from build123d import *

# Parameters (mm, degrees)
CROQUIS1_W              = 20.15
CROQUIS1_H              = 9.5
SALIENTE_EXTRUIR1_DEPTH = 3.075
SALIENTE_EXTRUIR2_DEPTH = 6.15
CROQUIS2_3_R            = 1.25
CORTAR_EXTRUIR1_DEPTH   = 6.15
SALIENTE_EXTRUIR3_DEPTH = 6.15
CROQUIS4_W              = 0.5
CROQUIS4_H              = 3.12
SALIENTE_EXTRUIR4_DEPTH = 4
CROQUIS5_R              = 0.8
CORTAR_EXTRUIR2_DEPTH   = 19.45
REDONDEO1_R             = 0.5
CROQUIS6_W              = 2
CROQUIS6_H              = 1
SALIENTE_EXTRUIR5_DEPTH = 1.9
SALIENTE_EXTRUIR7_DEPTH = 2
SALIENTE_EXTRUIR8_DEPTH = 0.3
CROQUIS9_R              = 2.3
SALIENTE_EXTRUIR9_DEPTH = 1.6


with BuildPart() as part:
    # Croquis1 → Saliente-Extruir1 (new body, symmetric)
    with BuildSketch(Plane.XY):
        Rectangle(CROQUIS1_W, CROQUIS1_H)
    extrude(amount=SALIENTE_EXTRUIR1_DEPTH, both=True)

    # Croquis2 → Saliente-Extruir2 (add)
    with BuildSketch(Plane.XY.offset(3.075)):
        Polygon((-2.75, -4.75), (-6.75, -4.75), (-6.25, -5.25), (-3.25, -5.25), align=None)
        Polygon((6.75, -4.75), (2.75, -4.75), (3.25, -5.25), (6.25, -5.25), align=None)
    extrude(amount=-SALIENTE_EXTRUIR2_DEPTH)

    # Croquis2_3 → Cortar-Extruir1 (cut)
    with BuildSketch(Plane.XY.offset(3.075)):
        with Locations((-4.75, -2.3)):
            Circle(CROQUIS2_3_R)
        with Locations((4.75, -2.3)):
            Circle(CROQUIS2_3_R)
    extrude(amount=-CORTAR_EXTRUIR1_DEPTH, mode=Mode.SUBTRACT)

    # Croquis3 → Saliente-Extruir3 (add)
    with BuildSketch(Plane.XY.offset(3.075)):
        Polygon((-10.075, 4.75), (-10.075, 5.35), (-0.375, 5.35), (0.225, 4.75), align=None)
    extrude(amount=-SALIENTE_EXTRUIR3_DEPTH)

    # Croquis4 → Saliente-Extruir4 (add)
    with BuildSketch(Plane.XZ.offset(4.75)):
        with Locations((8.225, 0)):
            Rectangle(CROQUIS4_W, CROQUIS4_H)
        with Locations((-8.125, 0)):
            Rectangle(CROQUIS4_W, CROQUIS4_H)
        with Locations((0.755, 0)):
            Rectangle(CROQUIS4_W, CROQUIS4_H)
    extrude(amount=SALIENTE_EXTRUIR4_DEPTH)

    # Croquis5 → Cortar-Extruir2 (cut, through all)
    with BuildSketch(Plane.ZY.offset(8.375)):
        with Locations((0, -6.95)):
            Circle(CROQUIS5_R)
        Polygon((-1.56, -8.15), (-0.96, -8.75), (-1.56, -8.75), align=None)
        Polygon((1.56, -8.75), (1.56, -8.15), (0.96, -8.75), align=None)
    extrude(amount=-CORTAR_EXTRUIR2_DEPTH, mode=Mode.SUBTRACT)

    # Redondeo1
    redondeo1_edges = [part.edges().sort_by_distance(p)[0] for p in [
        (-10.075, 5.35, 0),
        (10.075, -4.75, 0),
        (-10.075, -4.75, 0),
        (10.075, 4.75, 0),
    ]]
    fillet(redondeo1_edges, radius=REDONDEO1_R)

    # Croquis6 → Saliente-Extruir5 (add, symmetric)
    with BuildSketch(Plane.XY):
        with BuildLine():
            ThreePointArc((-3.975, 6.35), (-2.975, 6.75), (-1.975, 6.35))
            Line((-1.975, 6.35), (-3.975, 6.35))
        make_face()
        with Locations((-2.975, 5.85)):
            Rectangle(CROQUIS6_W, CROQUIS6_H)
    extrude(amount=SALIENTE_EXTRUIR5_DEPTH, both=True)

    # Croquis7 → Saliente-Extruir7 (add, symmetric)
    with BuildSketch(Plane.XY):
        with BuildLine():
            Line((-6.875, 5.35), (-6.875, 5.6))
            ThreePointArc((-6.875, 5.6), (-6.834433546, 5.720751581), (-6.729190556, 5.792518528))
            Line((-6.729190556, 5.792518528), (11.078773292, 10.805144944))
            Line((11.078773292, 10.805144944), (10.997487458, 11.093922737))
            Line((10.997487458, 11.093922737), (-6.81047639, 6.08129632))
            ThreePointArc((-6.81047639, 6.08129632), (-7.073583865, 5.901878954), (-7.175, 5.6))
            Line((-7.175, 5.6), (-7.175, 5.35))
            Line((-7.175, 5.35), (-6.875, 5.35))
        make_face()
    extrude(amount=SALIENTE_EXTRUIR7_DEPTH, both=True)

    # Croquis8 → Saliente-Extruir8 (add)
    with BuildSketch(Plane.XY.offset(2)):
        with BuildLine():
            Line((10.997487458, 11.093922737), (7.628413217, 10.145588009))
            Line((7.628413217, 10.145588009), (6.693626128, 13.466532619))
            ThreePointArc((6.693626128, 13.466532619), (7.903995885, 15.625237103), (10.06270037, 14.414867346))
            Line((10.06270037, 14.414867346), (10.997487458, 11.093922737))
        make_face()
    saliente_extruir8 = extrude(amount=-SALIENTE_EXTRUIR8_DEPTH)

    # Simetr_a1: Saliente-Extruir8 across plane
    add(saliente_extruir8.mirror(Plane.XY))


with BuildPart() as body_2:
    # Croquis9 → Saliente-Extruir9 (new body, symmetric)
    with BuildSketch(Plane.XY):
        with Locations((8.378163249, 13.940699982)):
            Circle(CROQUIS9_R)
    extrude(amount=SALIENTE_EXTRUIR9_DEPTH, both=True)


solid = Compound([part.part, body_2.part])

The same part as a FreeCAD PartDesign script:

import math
import FreeCAD as App
import Part
import Sketcher
Q = App.Units.Quantity


def edges_at(feature, points):
    """Names of the edges that pass closest to the given points."""
    edges = feature.Shape.Edges
    near = lambda p: min(range(len(edges)), key=lambda i: edges[i].distToShape(Part.Vertex(*p))[0])
    return sorted({f"Edge{near(p) + 1}" for p in points})


def add_polygon(sketch, points):
    """Adds a closed chain of lines whose ends are joined by coincident constraints."""
    first, n = sketch.GeometryCount, len(points)
    for a, b in zip(points, points[1:] + points[:1]):
        sketch.addGeometry(Part.LineSegment(App.Vector(*a, 0), App.Vector(*b, 0)), False)
    for i in range(n):
        sketch.addConstraint(Sketcher.Constraint("Coincident", first + i, 2, first + (i + 1) % n, 1))

doc = App.newDocument("Part")
params = doc.addObject("Spreadsheet::Sheet", "Params")
for row, (alias, value) in enumerate([
    ("sketch1_height", "9.5 mm"),
    ("sketch1_width", "20.15 mm"),
    ("pad1_length", "6.15 mm"),
    ("sketch2_width", "4 mm"),
    ("sketch2_width2", "3 mm"),
    ("pad2_length", "6.15 mm"),
    ("sketch3_diameter", "2.5 mm"),
    ("pocket1_length", "6.15 mm"),
    ("sketch4_width", "10.3 mm"),
    ("sketch4_width2", "9.7 mm"),
    ("pad3_length", "6.15 mm"),
    ("sketch5_width", "0.5 mm"),
    ("sketch5_height", "3.12 mm"),
    ("pad4_length", "4 mm"),
    ("sketch6_diameter", "1.6 mm"),
    ("sketch6_width", "0.6 mm"),
    ("fillet_radius", "0.5 mm"),
    ("sketch7_width", "2 mm"),
    ("sketch7_height", "1 mm"),
    ("sketch7_radius", "1.45 mm"),
    ("pad5_length", "3.8 mm"),
    ("sketch8_radius", "0.2 mm"),
    ("sketch8_radius2", "0.5 mm"),
    ("sketch8_length", "18.5 mm"),
    ("sketch8_length2", "0.3 mm"),
    ("sketch8_length3", "18.5 mm"),
    ("pad6_length", "4 mm"),
    ("sketch9_radius", "1.75 mm"),
    ("sketch9_length", "3.45 mm"),
    ("pad7_length", "0.3 mm"),
    ("sketch10_diameter", "4.6 mm"),
    ("pad8_length", "3.2 mm"),
], start=1):
    params.set(f"A{row}", alias)
    params.set(f"B{row}", "=" + value)
    params.setAlias(f"B{row}", alias)

body = doc.addObject("PartDesign::Body", "Body")

sketch1 = doc.addObject("Sketcher::SketchObject", "Sketch")
body.addObject(sketch1)
sketch1.AttachmentSupport = (doc.XY_Plane, [""])
sketch1.MapMode = "FlatFace"
add_polygon(sketch1, [(-10.075, 4.75), (-10.075, -4.75), (10.075, -4.75), (10.075, 4.75)])
sketch1.addConstraint(Sketcher.Constraint("Vertical", 0))
sketch1.addConstraint(Sketcher.Constraint("Horizontal", 1))
sketch1.addConstraint(Sketcher.Constraint("Vertical", 2))
sketch1.addConstraint(Sketcher.Constraint("Horizontal", 3))
sketch1.addConstraint(Sketcher.Constraint("Symmetric", 0, 2, 2, 2, -1, 1))
sketch1.addConstraint(Sketcher.Constraint("DistanceY", 0, 2, 0, 1, Q("9.5 mm")))
sketch1.addConstraint(Sketcher.Constraint("DistanceX", 1, 1, 1, 2, Q("20.15 mm")))
sketch1.setExpression("Constraints[9]", "Params.sketch1_height")
sketch1.setExpression("Constraints[10]", "Params.sketch1_width")
pad1 = doc.addObject("PartDesign::Pad", "Pad")
body.addObject(pad1)
pad1.Profile = sketch1
pad1.setExpression("Length", "Params.pad1_length")
pad1.Midplane = True

sketch2 = doc.addObject("Sketcher::SketchObject", "Sketch001")
body.addObject(sketch2)
sketch2.AttachmentSupport = (doc.XY_Plane, [""])
sketch2.MapMode = "FlatFace"
sketch2.AttachmentOffset = App.Placement(App.Vector(0, 0, 3.075), App.Rotation())
add_polygon(sketch2, [(-2.75, -4.75), (-6.75, -4.75), (-6.25, -5.25), (-3.25, -5.25)])
add_polygon(sketch2, [(6.75, -4.75), (2.75, -4.75), (3.25, -5.25), (6.25, -5.25)])
sketch2.addConstraint(Sketcher.Constraint("Horizontal", 0))
sketch2.addConstraint(Sketcher.Constraint("Horizontal", 2))
sketch2.addConstraint(Sketcher.Constraint("Horizontal", 4))
sketch2.addConstraint(Sketcher.Constraint("Horizontal", 6))
sketch2.addConstraint(Sketcher.Constraint("Symmetric", 3, 2, 4, 2, -2))
sketch2.addConstraint(Sketcher.Constraint("Symmetric", 2, 2, 5, 2, -2))
sketch2.addConstraint(Sketcher.Constraint("Perpendicular", 1, 3))
sketch2.addConstraint(Sketcher.Constraint("Perpendicular", 3, 5))
sketch2.addConstraint(Sketcher.Constraint("Perpendicular", 5, 7))
sketch2.addConstraint(Sketcher.Constraint("Equal", 0, 4))
sketch2.addConstraint(Sketcher.Constraint("DistanceX", 0, 2, 0, 1, Q("4 mm")))
sketch2.addConstraint(Sketcher.Constraint("DistanceX", 2, 1, 2, 2, Q("3 mm")))
sketch2.addConstraint(Sketcher.Constraint("DistanceX", 2, 2, 4, 2, Q("6 mm")))
sketch2.addConstraint(Sketcher.Constraint("DistanceY", 0, 2, -1, 1, Q("4.75 mm")))
sketch2.setExpression("Constraints[18]", "Params.sketch2_width")
sketch2.setExpression("Constraints[19]", "Params.sketch2_width2")
pad2 = doc.addObject("PartDesign::Pad", "Pad001")
body.addObject(pad2)
pad2.Profile = sketch2
pad2.setExpression("Length", "Params.pad2_length")
pad2.Reversed = True

sketch3 = doc.addObject("Sketcher::SketchObject", "Sketch002")
body.addObject(sketch3)
sketch3.AttachmentSupport = (doc.XY_Plane, [""])
sketch3.MapMode = "FlatFace"
sketch3.AttachmentOffset = App.Placement(App.Vector(0, 0, 3.075), App.Rotation())
sketch3.addGeometry(Part.Circle(App.Vector(-4.75, -2.3, 0), App.Vector(0, 0, 1), 1.25), False)
sketch3.addGeometry(Part.Circle(App.Vector(4.75, -2.3, 0), App.Vector(0, 0, 1), 1.25), False)
sketch3.addConstraint(Sketcher.Constraint("Equal", 0, 1))
sketch3.addConstraint(Sketcher.Constraint("Symmetric", 0, 3, 1, 3, -2))
sketch3.addConstraint(Sketcher.Constraint("Diameter", 0, Q("2.5 mm")))
sketch3.addConstraint(Sketcher.Constraint("DistanceY", 0, 3, -1, 1, Q("2.3 mm")))
sketch3.addConstraint(Sketcher.Constraint("DistanceX", 0, 3, 1, 3, Q("9.5 mm")))
sketch3.setExpression("Constraints[2]", "Params.sketch3_diameter")
pocket1 = doc.addObject("PartDesign::Pocket", "Pocket")
body.addObject(pocket1)
pocket1.Profile = sketch3
pocket1.setExpression("Length", "Params.pocket1_length")

sketch4 = doc.addObject("Sketcher::SketchObject", "Sketch003")
body.addObject(sketch4)
sketch4.AttachmentSupport = (doc.XY_Plane, [""])
sketch4.MapMode = "FlatFace"
sketch4.AttachmentOffset = App.Placement(App.Vector(0, 0, 3.075), App.Rotation())
add_polygon(sketch4, [(-10.075, 5.35), (-10.075, 4.75), (0.225, 4.75), (-0.375, 5.35)])
sketch4.addConstraint(Sketcher.Constraint("Vertical", 0))
sketch4.addConstraint(Sketcher.Constraint("Horizontal", 1))
sketch4.addConstraint(Sketcher.Constraint("Horizontal", 3))
sketch4.addConstraint(Sketcher.Constraint("Angle", 2, Q("135 deg")))
sketch4.addConstraint(Sketcher.Constraint("DistanceX", 1, 1, 1, 2, Q("10.3 mm")))
sketch4.addConstraint(Sketcher.Constraint("DistanceX", 3, 2, 3, 1, Q("9.7 mm")))
sketch4.addConstraint(Sketcher.Constraint("DistanceY", -1, 1, 0, 2, Q("4.75 mm")))
sketch4.addConstraint(Sketcher.Constraint("DistanceX", 0, 2, -1, 1, Q("10.075 mm")))
sketch4.setExpression("Constraints[8]", "Params.sketch4_width")
sketch4.setExpression("Constraints[9]", "Params.sketch4_width2")
pad3 = doc.addObject("PartDesign::Pad", "Pad002")
body.addObject(pad3)
pad3.Profile = sketch4
pad3.setExpression("Length", "Params.pad3_length")
pad3.Reversed = True

sketch5 = doc.addObject("Sketcher::SketchObject", "Sketch004")
body.addObject(sketch5)
sketch5.AttachmentSupport = (doc.XZ_Plane, [""])
sketch5.MapMode = "FlatFace"
sketch5.AttachmentOffset = App.Placement(App.Vector(0, 0, 4.75), App.Rotation())
add_polygon(sketch5, [(7.975, 1.56), (7.975, -1.56), (8.475, -1.56), (8.475, 1.56)])
add_polygon(sketch5, [(-8.375, 1.56), (-8.375, -1.56), (-7.875, -1.56), (-7.875, 1.56)])
add_polygon(sketch5, [(0.505, 1.56), (0.505, -1.56), (1.005, -1.56), (1.005, 1.56)])
sketch5.addConstraint(Sketcher.Constraint("Vertical", 0))
sketch5.addConstraint(Sketcher.Constraint("Horizontal", 1))
sketch5.addConstraint(Sketcher.Constraint("Vertical", 2))
sketch5.addConstraint(Sketcher.Constraint("Horizontal", 3))
sketch5.addConstraint(Sketcher.Constraint("Vertical", 4))
sketch5.addConstraint(Sketcher.Constraint("Horizontal", 5))
sketch5.addConstraint(Sketcher.Constraint("Vertical", 6))
sketch5.addConstraint(Sketcher.Constraint("Horizontal", 7))
sketch5.addConstraint(Sketcher.Constraint("Vertical", 8))
sketch5.addConstraint(Sketcher.Constraint("Horizontal", 9))
sketch5.addConstraint(Sketcher.Constraint("Vertical", 10))
sketch5.addConstraint(Sketcher.Constraint("Horizontal", 11))
sketch5.addConstraint(Sketcher.Constraint("Horizontal", 1, 2, 4, 2))
sketch5.addConstraint(Sketcher.Constraint("Horizontal", 3, 2, 6, 2))
sketch5.addConstraint(Sketcher.Constraint("Horizontal", 5, 2, 8, 2))
sketch5.addConstraint(Sketcher.Constraint("Horizontal", 7, 2, 10, 2))
sketch5.addConstraint(Sketcher.Constraint("Equal", 3, 5))
sketch5.addConstraint(Sketcher.Constraint("Equal", 7, 9))
sketch5.addConstraint(Sketcher.Constraint("DistanceX", 1, 1, 1, 2, Q("0.5 mm")))
sketch5.addConstraint(Sketcher.Constraint("DistanceY", 0, 2, 0, 1, Q("3.12 mm")))
sketch5.addConstraint(Sketcher.Constraint("DistanceY", 0, 2, -1, 1, Q("1.56 mm")))
sketch5.addConstraint(Sketcher.Constraint("DistanceX", 4, 2, 0, 2, Q("16.35 mm")))
sketch5.addConstraint(Sketcher.Constraint("DistanceX", 8, 2, 0, 2, Q("7.47 mm")))
sketch5.addConstraint(Sketcher.Constraint("DistanceX", -1, 1, 0, 2, Q("7.975 mm")))
sketch5.setExpression("Constraints[30]", "Params.sketch5_width")
sketch5.setExpression("Constraints[31]", "Params.sketch5_height")
pad4 = doc.addObject("PartDesign::Pad", "Pad003")
body.addObject(pad4)
pad4.Profile = sketch5
pad4.setExpression("Length", "Params.pad4_length")

sketch6 = doc.addObject("Sketcher::SketchObject", "Sketch005")
body.addObject(sketch6)
sketch6.AttachmentSupport = (doc.YZ_Plane, [""])
sketch6.MapMode = "FlatFace"
sketch6.AttachmentOffset = App.Placement(App.Vector(0, 0, -8.375), App.Rotation())
sketch6.addGeometry(Part.Circle(App.Vector(-6.95, 0, 0), App.Vector(0, 0, 1), 0.8), False)
add_polygon(sketch6, [(-8.75, -0.96), (-8.15, -1.56), (-8.75, -1.56)])
add_polygon(sketch6, [(-8.75, 1.56), (-8.15, 1.56), (-8.75, 0.96)])
sketch6.addConstraint(Sketcher.Constraint("Horizontal", 2))
sketch6.addConstraint(Sketcher.Constraint("Vertical", 3))
sketch6.addConstraint(Sketcher.Constraint("Horizontal", 4))
sketch6.addConstraint(Sketcher.Constraint("Vertical", 6))
sketch6.addConstraint(Sketcher.Constraint("Symmetric", 1, 2, 4, 2, -1))
sketch6.addConstraint(Sketcher.Constraint("Symmetric", 3, 2, 5, 2, -1))
sketch6.addConstraint(Sketcher.Constraint("PointOnObject", 0, 3, -1))
sketch6.addConstraint(Sketcher.Constraint("Perpendicular", 1, 5))
sketch6.addConstraint(Sketcher.Constraint("Diameter", 0, Q("1.6 mm")))
sketch6.addConstraint(Sketcher.Constraint("DistanceX", 2, 2, 2, 1, Q("0.6 mm")))
sketch6.addConstraint(Sketcher.Constraint("DistanceX", 1, 2, 0, 3, Q("1.2 mm")))
sketch6.addConstraint(Sketcher.Constraint("DistanceX", 0, 3, -1, 1, Q("6.95 mm")))
sketch6.addConstraint(Sketcher.Constraint("DistanceY", 1, 2, -1, 1, Q("1.56 mm")))
sketch6.setExpression("Constraints[14]", "Params.sketch6_diameter")
sketch6.setExpression("Constraints[15]", "Params.sketch6_width")
pocket2 = doc.addObject("PartDesign::Pocket", "Pocket001")
body.addObject(pocket2)
pocket2.Profile = sketch6
pocket2.Type = "ThroughAll"
pocket2.Reversed = True
doc.recompute()

fillet = doc.addObject("PartDesign::Fillet", "Fillet")
body.addObject(fillet)
fillet.Base = (pocket2, edges_at(pocket2, [
    (-10.075, 5.35, 0),
    (10.075, -4.75, 0),
    (-10.075, -4.75, 0),
    (10.075, 4.75, 0),
]))
fillet.setExpression("Radius", "Params.fillet_radius")

sketch7 = doc.addObject("Sketcher::SketchObject", "Sketch006")
body.addObject(sketch7)
sketch7.AttachmentSupport = (doc.XY_Plane, [""])
sketch7.MapMode = "FlatFace"
sketch7.addGeometry(Part.ArcOfCircle(Part.Circle(App.Vector(-2.975, 5.3, 0), App.Vector(0, 0, 1), 1.45), math.radians(46.397181), math.radians(133.602819)), False)
sketch7.addGeometry(Part.LineSegment(App.Vector(-3.975, 6.35, 0), App.Vector(-3.975, 5.35, 0)), False)
sketch7.addGeometry(Part.LineSegment(App.Vector(-3.975, 5.35, 0), App.Vector(-1.975, 5.35, 0)), False)
sketch7.addGeometry(Part.LineSegment(App.Vector(-1.975, 5.35, 0), App.Vector(-1.975, 6.35, 0)), False)
sketch7.addConstraint(Sketcher.Constraint("Coincident", 0, 2, 1, 1))
sketch7.addConstraint(Sketcher.Constraint("Coincident", 1, 2, 2, 1))
sketch7.addConstraint(Sketcher.Constraint("Coincident", 2, 2, 3, 1))
sketch7.addConstraint(Sketcher.Constraint("Coincident", 3, 2, 0, 1))
sketch7.addConstraint(Sketcher.Constraint("Vertical", 1))
sketch7.addConstraint(Sketcher.Constraint("Horizontal", 2))
sketch7.addConstraint(Sketcher.Constraint("Vertical", 3))
sketch7.addConstraint(Sketcher.Constraint("Horizontal", 0, 2, 3, 2))
sketch7.addConstraint(Sketcher.Constraint("DistanceX", 2, 1, 2, 2, Q("2 mm")))
sketch7.addConstraint(Sketcher.Constraint("DistanceY", 1, 2, 1, 1, Q("1 mm")))
sketch7.addConstraint(Sketcher.Constraint("Radius", 0, Q("1.45 mm")))
sketch7.addConstraint(Sketcher.Constraint("DistanceY", -1, 1, 0, 3, Q("5.3 mm")))
sketch7.addConstraint(Sketcher.Constraint("DistanceX", 0, 3, -1, 1, Q("2.975 mm")))
sketch7.setExpression("Constraints[8]", "Params.sketch7_width")
sketch7.setExpression("Constraints[9]", "Params.sketch7_height")
sketch7.setExpression("Constraints[10]", "Params.sketch7_radius")
pad5 = doc.addObject("PartDesign::Pad", "Pad004")
body.addObject(pad5)
pad5.Profile = sketch7
pad5.setExpression("Length", "Params.pad5_length")
pad5.Midplane = True

sketch8 = doc.addObject("Sketcher::SketchObject", "Sketch007")
body.addObject(sketch8)
sketch8.AttachmentSupport = (doc.XY_Plane, [""])
sketch8.MapMode = "FlatFace"
sketch8.addGeometry(Part.LineSegment(App.Vector(-6.875, 5.35, 0), App.Vector(-6.875, 5.6, 0)), False)
sketch8.addGeometry(Part.ArcOfCircle(Part.Circle(App.Vector(-6.675, 5.6, 0), App.Vector(0, 0, 1), 0.2), math.radians(105.720971), math.radians(180)), False)
sketch8.addGeometry(Part.LineSegment(App.Vector(-6.729191, 5.792519, 0), App.Vector(11.078773, 10.805145, 0)), False)
sketch8.addGeometry(Part.LineSegment(App.Vector(11.078773, 10.805145, 0), App.Vector(10.997487, 11.093923, 0)), False)
sketch8.addGeometry(Part.LineSegment(App.Vector(10.997487, 11.093923, 0), App.Vector(-6.810476, 6.081296, 0)), False)
sketch8.addGeometry(Part.ArcOfCircle(Part.Circle(App.Vector(-6.675, 5.6, 0), App.Vector(0, 0, 1), 0.5), math.radians(105.720971), math.radians(180)), False)
sketch8.addGeometry(Part.LineSegment(App.Vector(-7.175, 5.6, 0), App.Vector(-7.175, 5.35, 0)), False)
sketch8.addGeometry(Part.LineSegment(App.Vector(-7.175, 5.35, 0), App.Vector(-6.875, 5.35, 0)), False)
sketch8.addConstraint(Sketcher.Constraint("Coincident", 0, 2, 1, 2))
sketch8.addConstraint(Sketcher.Constraint("Coincident", 1, 1, 2, 1))
sketch8.addConstraint(Sketcher.Constraint("Coincident", 2, 2, 3, 1))
sketch8.addConstraint(Sketcher.Constraint("Coincident", 3, 2, 4, 1))
sketch8.addConstraint(Sketcher.Constraint("Coincident", 4, 2, 5, 1))
sketch8.addConstraint(Sketcher.Constraint("Coincident", 5, 2, 6, 1))
sketch8.addConstraint(Sketcher.Constraint("Coincident", 6, 2, 7, 1))
sketch8.addConstraint(Sketcher.Constraint("Coincident", 7, 2, 0, 1))
sketch8.addConstraint(Sketcher.Constraint("Vertical", 0))
sketch8.addConstraint(Sketcher.Constraint("Vertical", 6))
sketch8.addConstraint(Sketcher.Constraint("Horizontal", 7))
sketch8.addConstraint(Sketcher.Constraint("Coincident", 5, 3, 1, 3))
sketch8.addConstraint(Sketcher.Constraint("Radius", 1, Q("0.2 mm")))
sketch8.addConstraint(Sketcher.Constraint("Radius", 5, Q("0.5 mm")))
sketch8.addConstraint(Sketcher.Constraint("Distance", 2, Q("18.5 mm")))
sketch8.addConstraint(Sketcher.Constraint("Distance", 3, Q("0.3 mm")))
sketch8.addConstraint(Sketcher.Constraint("Distance", 4, Q("18.5 mm")))
sketch8.addConstraint(Sketcher.Constraint("DistanceY", 0, 1, 0, 2, Q("0.25 mm")))
sketch8.addConstraint(Sketcher.Constraint("DistanceY", 6, 2, 6, 1, Q("0.25 mm")))
sketch8.addConstraint(Sketcher.Constraint("DistanceY", -1, 1, 1, 3, Q("5.6 mm")))
sketch8.addConstraint(Sketcher.Constraint("DistanceY", -1, 1, 0, 2, Q("5.6 mm")))
sketch8.addConstraint(Sketcher.Constraint("DistanceX", 1, 3, -1, 1, Q("6.675 mm")))
sketch8.addConstraint(Sketcher.Constraint("DistanceX", 1, 1, -1, 1, Q("6.729191 mm")))
sketch8.addConstraint(Sketcher.Constraint("DistanceX", 1, 1, 3, 2, Q("17.726678 mm")))
sketch8.addConstraint(Sketcher.Constraint("DistanceX", -1, 1, 2, 2, Q("11.078773 mm")))
sketch8.setExpression("Constraints[12]", "Params.sketch8_radius")
sketch8.setExpression("Constraints[13]", "Params.sketch8_radius2")
sketch8.setExpression("Constraints[14]", "Params.sketch8_length")
sketch8.setExpression("Constraints[15]", "Params.sketch8_length2")
sketch8.setExpression("Constraints[16]", "Params.sketch8_length3")
pad6 = doc.addObject("PartDesign::Pad", "Pad005")
body.addObject(pad6)
pad6.Profile = sketch8
pad6.setExpression("Length", "Params.pad6_length")
pad6.Midplane = True

sketch9 = doc.addObject("Sketcher::SketchObject", "Sketch008")
body.addObject(sketch9)
sketch9.AttachmentSupport = (doc.XY_Plane, [""])
sketch9.MapMode = "FlatFace"
sketch9.AttachmentOffset = App.Placement(App.Vector(0, 0, 2), App.Rotation())
sketch9.addGeometry(Part.LineSegment(App.Vector(7.628413, 10.145588, 0), App.Vector(10.997487, 11.093923, 0)), False)
sketch9.addGeometry(Part.LineSegment(App.Vector(10.997487, 11.093923, 0), App.Vector(10.0627, 14.414867, 0)), False)
sketch9.addGeometry(Part.ArcOfCircle(Part.Circle(App.Vector(8.378163, 13.9407, 0), App.Vector(0, 0, 1), 1.75), math.radians(15.720971), math.radians(195.720971)), False)
sketch9.addGeometry(Part.LineSegment(App.Vector(6.693626, 13.466533, 0), App.Vector(7.628413, 10.145588, 0)), False)
sketch9.addConstraint(Sketcher.Constraint("Coincident", 0, 2, 1, 1))
sketch9.addConstraint(Sketcher.Constraint("Tangent", 1, 2, 2, 1))
sketch9.addConstraint(Sketcher.Constraint("Tangent", 2, 2, 3, 1))
sketch9.addConstraint(Sketcher.Constraint("Coincident", 3, 2, 0, 1))
sketch9.addConstraint(Sketcher.Constraint("Perpendicular", 0, 1))
sketch9.addConstraint(Sketcher.Constraint("Parallel", 1, 3))
sketch9.addConstraint(Sketcher.Constraint("Radius", 2, Q("1.75 mm")))
sketch9.addConstraint(Sketcher.Constraint("Distance", 1, Q("3.45 mm")))
sketch9.addConstraint(Sketcher.Constraint("DistanceY", -1, 1, 2, 3, Q("13.9407 mm")))
sketch9.addConstraint(Sketcher.Constraint("DistanceX", -1, 1, 1, 2, Q("10.0627 mm")))
sketch9.addConstraint(Sketcher.Constraint("DistanceY", -1, 1, 3, 2, Q("10.145588 mm")))
sketch9.setExpression("Constraints[6]", "Params.sketch9_radius")
sketch9.setExpression("Constraints[7]", "Params.sketch9_length")
pad7 = doc.addObject("PartDesign::Pad", "Pad006")
body.addObject(pad7)
pad7.Profile = sketch9
pad7.setExpression("Length", "Params.pad7_length")
pad7.Reversed = True
doc.recompute()

mirrored = doc.addObject("PartDesign::Mirrored", "Mirrored")
body.addObject(mirrored)
mirrored.Originals = [pad7]
mirrored.MirrorPlane = (doc.XY_Plane, [""])
body.Tip = mirrored
body2 = doc.addObject("PartDesign::Body", "Body001")

sketch10 = doc.addObject("Sketcher::SketchObject", "Sketch009")
body2.addObject(sketch10)
sketch10.AttachmentSupport = (doc.getObject("XY_Plane001"), [""])
sketch10.MapMode = "FlatFace"
sketch10.addGeometry(Part.Circle(App.Vector(8.378163, 13.9407, 0), App.Vector(0, 0, 1), 2.3), False)
sketch10.addConstraint(Sketcher.Constraint("Diameter", 0, Q("4.6 mm")))
sketch10.addConstraint(Sketcher.Constraint("DistanceY", -1, 1, 0, 3, Q("13.9407 mm")))
sketch10.addConstraint(Sketcher.Constraint("DistanceX", -1, 1, 0, 3, Q("8.378163 mm")))
sketch10.setExpression("Constraints[0]", "Params.sketch10_diameter")
pad8 = doc.addObject("PartDesign::Pad", "Pad007")
body2.addObject(pad8)
pad8.Profile = sketch10
pad8.setExpression("Length", "Params.pad8_length")
pad8.Midplane = True

doc.recompute()
